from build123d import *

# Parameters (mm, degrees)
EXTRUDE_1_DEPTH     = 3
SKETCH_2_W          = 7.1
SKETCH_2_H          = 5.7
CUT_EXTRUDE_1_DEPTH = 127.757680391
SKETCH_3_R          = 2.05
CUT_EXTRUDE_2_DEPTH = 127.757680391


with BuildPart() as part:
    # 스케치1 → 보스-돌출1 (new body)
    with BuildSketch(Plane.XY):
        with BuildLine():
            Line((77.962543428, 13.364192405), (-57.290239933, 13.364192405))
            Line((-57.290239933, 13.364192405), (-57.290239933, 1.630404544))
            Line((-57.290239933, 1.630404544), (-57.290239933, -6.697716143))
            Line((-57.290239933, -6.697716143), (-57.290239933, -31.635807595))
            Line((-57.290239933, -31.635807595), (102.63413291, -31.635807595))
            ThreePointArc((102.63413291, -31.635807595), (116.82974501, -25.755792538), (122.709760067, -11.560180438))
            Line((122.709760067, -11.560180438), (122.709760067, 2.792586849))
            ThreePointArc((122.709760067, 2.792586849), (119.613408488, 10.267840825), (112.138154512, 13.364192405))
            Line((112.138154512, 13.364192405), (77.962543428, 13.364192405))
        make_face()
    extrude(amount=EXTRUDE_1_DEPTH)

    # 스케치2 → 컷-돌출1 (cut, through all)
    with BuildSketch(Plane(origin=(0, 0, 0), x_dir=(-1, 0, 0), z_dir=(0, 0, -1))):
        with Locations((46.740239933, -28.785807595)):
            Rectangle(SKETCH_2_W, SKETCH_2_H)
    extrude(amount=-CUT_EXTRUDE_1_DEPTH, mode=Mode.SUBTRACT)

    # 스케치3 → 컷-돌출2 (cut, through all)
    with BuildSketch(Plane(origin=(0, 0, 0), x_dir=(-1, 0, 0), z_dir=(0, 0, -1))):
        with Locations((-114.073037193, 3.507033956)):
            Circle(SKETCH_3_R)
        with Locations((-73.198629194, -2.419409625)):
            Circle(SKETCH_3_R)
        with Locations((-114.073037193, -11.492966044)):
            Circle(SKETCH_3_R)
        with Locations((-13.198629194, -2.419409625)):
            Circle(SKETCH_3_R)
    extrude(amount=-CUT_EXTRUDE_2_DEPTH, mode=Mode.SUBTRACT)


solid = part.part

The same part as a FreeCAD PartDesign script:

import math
import FreeCAD as App
import Part
import Sketcher
from FreeCAD import Vector
Q = App.Units.Quantity

doc = App.newDocument("Part")
params = doc.addObject("Spreadsheet::Sheet", "Params")
for row, (alias, value) in enumerate([
    ("sketch1_height", "45 mm"),
    ("pad1_length", "3 mm"),
    ("sketch2_width", "7.1 mm"),
    ("sketch2_height", "5.7 mm"),
    ("sketch3_diameter", "4.1 mm"),
], start=1):
    params.set(f"A{row}", alias)
    params.set(f"B{row}", "=" + value)
    params.setAlias(f"B{row}", alias)

body = doc.addObject("PartDesign::Body", "Body")

sketch1 = doc.addObject("Sketcher::SketchObject", "Sketch")
body.addObject(sketch1)
sketch1.AttachmentSupport = (doc.XY_Plane, [""])
sketch1.MapMode = "FlatFace"
sketch1.addGeometry(Part.LineSegment(Vector(-57.29024, 13.364192, 0), Vector(-57.29024, -31.635808, 0)), False)
sketch1.addGeometry(Part.LineSegment(Vector(-57.29024, -31.635808, 0), Vector(102.634133, -31.635808, 0)), False)
sketch1.addGeometry(Part.ArcOfCircle(Part.Circle(Vector(102.634133, -11.56018, 0), Vector(0, 0, 1), 20.075627), math.radians(-90), math.radians(0)), False)
sketch1.addGeometry(Part.LineSegment(Vector(122.70976, -11.56018, 0), Vector(122.70976, 2.792587, 0)), False)
sketch1.addGeometry(Part.ArcOfCircle(Part.Circle(Vector(112.138155, 2.792587, 0), Vector(0, 0, 1), 10.571606), math.radians(0), math.radians(90)), False)
sketch1.addGeometry(Part.LineSegment(Vector(112.138155, 13.364192, 0), Vector(-57.29024, 13.364192, 0)), False)
sketch1.addConstraint(Sketcher.Constraint("Coincident", 0, 2, 1, 1))
sketch1.addConstraint(Sketcher.Constraint("Tangent", 1, 2, 2, 1))
sketch1.addConstraint(Sketcher.Constraint("Tangent", 2, 2, 3, 1))
sketch1.addConstraint(Sketcher.Constraint("Tangent", 3, 2, 4, 1))
sketch1.addConstraint(Sketcher.Constraint("Tangent", 4, 2, 5, 1))
sketch1.addConstraint(Sketcher.Constraint("Coincident", 5, 2, 0, 1))
sketch1.addConstraint(Sketcher.Constraint("Vertical", 0))
sketch1.addConstraint(Sketcher.Constraint("Horizontal", 1))
sketch1.addConstraint(Sketcher.Constraint("Vertical", 3))
sketch1.addConstraint(Sketcher.Constraint("Horizontal", 5))
sketch1.addConstraint(Sketcher.Constraint("DistanceY", 0, 2, 0, 1, Q("45 mm")))
sketch1.addConstraint(Sketcher.Constraint("DistanceX", 0, 2, 2, 2, Q("180 mm")))
sketch1.addConstraint(Sketcher.Constraint("Radius", 2, Q("20.075627 mm")))
sketch1.addConstraint(Sketcher.Constraint("Radius", 4, Q("10.571606 mm")))
sketch1.addConstraint(Sketcher.Constraint("DistanceY", 2, 3, -1, 1, Q("11.56018 mm")))
sketch1.addConstraint(Sketcher.Constraint("DistanceX", 0, 2, -1, 1, Q("57.29024 mm")))
sketch1.setExpression("Constraints[10]", "Params.sketch1_height")
pad1 = doc.addObject("PartDesign::Pad", "Pad")
body.addObject(pad1)
pad1.Profile = sketch1
pad1.setExpression("Length", "Params.pad1_length")

sketch2 = doc.addObject("Sketcher::SketchObject", "Sketch001")
body.addObject(sketch2)
sketch2.AttachmentSupport = (doc.XY_Plane, [""])
sketch2.MapMode = "FlatFace"
sketch2.addGeometry(Part.LineSegment(Vector(-43.19024, -25.935808, 0), Vector(-43.19024, -31.635808, 0)), False)
sketch2.addGeometry(Part.LineSegment(Vector(-43.19024, -31.635808, 0), Vector(-50.29024, -31.635808, 0)), False)
sketch2.addGeometry(Part.LineSegment(Vector(-50.29024, -31.635808, 0), Vector(-50.29024, -25.935808, 0)), False)
sketch2.addGeometry(Part.LineSegment(Vector(-50.29024, -25.935808, 0), Vector(-43.19024, -25.935808, 0)), False)
sketch2.addConstraint(Sketcher.Constraint("Coincident", 0, 2, 1, 1))
sketch2.addConstraint(Sketcher.Constraint("Coincident", 1, 2, 2, 1))
sketch2.addConstraint(Sketcher.Constraint("Coincident", 2, 2, 3, 1))
sketch2.addConstraint(Sketcher.Constraint("Coincident", 3, 2, 0, 1))
sketch2.addConstraint(Sketcher.Constraint("Vertical", 0))
sketch2.addConstraint(Sketcher.Constraint("Horizontal", 1))
sketch2.addConstraint(Sketcher.Constraint("Vertical", 2))
sketch2.addConstraint(Sketcher.Constraint("Horizontal", 3))
sketch2.addConstraint(Sketcher.Constraint("DistanceX", 1, 2, 1, 1, Q("7.1 mm")))
sketch2.addConstraint(Sketcher.Constraint("DistanceY", 0, 2, 0, 1, Q("5.7 mm")))
sketch2.addConstraint(Sketcher.Constraint("DistanceX", 0, 2, -1, 1, Q("43.19024 mm")))
sketch2.addConstraint(Sketcher.Constraint("DistanceY", 0, 2, -1, 1, Q("31.635808 mm")))
sketch2.setExpression("Constraints[8]", "Params.sketch2_width")
sketch2.setExpression("Constraints[9]", "Params.sketch2_height")
pocket1 = doc.addObject("PartDesign::Pocket", "Pocket")
body.addObject(pocket1)
pocket1.Profile = sketch2
pocket1.Type = "ThroughAll"
pocket1.Reversed = True

sketch3 = doc.addObject("Sketcher::SketchObject", "Sketch002")
body.addObject(sketch3)
sketch3.AttachmentSupport = (doc.XY_Plane, [""])
sketch3.MapMode = "FlatFace"
sketch3.addGeometry(Part.Circle(Vector(114.073037, 3.507034, 0), Vector(0, 0, 1), 2.05), False)
sketch3.addGeometry(Part.Circle(Vector(73.198629, -2.41941, 0), Vector(0, 0, 1), 2.05), False)
sketch3.addGeometry(Part.Circle(Vector(114.073037, -11.492966, 0), Vector(0, 0, 1), 2.05), False)
sketch3.addGeometry(Part.Circle(Vector(13.198629, -2.41941, 0), Vector(0, 0, 1), 2.05), False)
sketch3.addConstraint(Sketcher.Constraint("Equal", 0, 1))
sketch3.addConstraint(Sketcher.Constraint("Equal", 1, 2))
sketch3.addConstraint(Sketcher.Constraint("Equal", 2, 3))
sketch3.addConstraint(Sketcher.Constraint("Horizontal", 1, 3, 3, 3))
sketch3.addConstraint(Sketcher.Constraint("Vertical", 0, 3, 2, 3))
sketch3.addConstraint(Sketcher.Constraint("Diameter", 0, Q("4.1 mm")))
sketch3.addConstraint(Sketcher.Constraint("DistanceY", 2, 3, 0, 3, Q("15 mm")))
sketch3.addConstraint(Sketcher.Constraint("DistanceX", 3, 3, 1, 3, Q("60 mm")))
sketch3.addConstraint(Sketcher.Constraint("DistanceX", -1, 1, 1, 3, Q("73.198629 mm")))
sketch3.addConstraint(Sketcher.Constraint("DistanceY", 1, 3, -1, 1, Q("2.41941 mm")))
sketch3.addConstraint(Sketcher.Constraint("DistanceX", -1, 1, 0, 3, Q("114.073037 mm")))
sketch3.addConstraint(Sketcher.Constraint("DistanceY", -1, 1, 0, 3, Q("3.507034 mm")))
sketch3.setExpression("Constraints[5]", "Params.sketch3_diameter")
pocket2 = doc.addObject("PartDesign::Pocket", "Pocket001")
body.addObject(pocket2)
pocket2.Profile = sketch3
pocket2.Type = "ThroughAll"
pocket2.Reversed = True

doc.recompute()
